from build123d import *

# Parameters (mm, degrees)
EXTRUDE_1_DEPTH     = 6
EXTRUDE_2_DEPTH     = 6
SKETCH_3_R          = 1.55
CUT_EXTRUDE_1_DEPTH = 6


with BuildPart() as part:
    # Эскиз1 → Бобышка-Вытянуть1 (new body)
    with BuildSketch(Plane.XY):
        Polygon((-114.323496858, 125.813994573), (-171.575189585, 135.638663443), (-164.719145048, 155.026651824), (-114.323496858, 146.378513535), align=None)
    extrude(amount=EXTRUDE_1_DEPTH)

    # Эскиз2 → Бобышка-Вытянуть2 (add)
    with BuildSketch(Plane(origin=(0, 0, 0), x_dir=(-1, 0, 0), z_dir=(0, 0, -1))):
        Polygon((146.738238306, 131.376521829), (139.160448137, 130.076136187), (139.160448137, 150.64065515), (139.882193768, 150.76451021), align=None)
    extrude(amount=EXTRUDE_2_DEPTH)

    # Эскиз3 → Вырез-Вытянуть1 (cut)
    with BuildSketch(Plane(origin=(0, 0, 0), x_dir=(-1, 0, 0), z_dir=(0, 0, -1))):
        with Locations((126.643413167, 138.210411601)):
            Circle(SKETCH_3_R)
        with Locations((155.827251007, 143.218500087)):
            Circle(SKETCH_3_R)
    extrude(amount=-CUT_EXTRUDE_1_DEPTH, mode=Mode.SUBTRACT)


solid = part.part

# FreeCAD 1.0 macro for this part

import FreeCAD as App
import Part
import Sketcher

V = App.Vector

doc = App.newDocument("Part")
body = doc.addObject("PartDesign::Body", "Body")

# Sketch on XY plane
sketch1 = body.newObject("Sketcher::SketchObject", "Sketch")
sketch1.AttachmentSupport = (doc.getObject("XY_Plane"), [""])
sketch1.MapMode = "FlatFace"
sketch1.addGeometry([
    Part.LineSegment(V(-172, 136, 0), V(-114, 126, 0)),
    Part.LineSegment(V(-114, 126, 0), V(-114, 146, 0)),
    Part.LineSegment(V(-114, 146, 0), V(-165, 155, 0)),
    Part.LineSegment(V(-165, 155, 0), V(-172, 136, 0)),
], False)
sketch1.addConstraint([
    Sketcher.Constraint("Coincident", 0, 2, 1, 1),
    Sketcher.Constraint("Coincident", 1, 2, 2, 1),
    Sketcher.Constraint("Coincident", 2, 2, 3, 1),
    Sketcher.Constraint("Coincident", 3, 2, 0, 1),
    Sketcher.Constraint("Vertical", 1),
    Sketcher.Constraint("Parallel", 0, 2),
    Sketcher.Constraint("DistanceY", 1, 1, 1, 2, 20.564519),
    Sketcher.Constraint("Distance", 3, 20.564519),
    Sketcher.Constraint("DistanceY", -1, 1, 2, 2, 155.026652),
    Sketcher.Constraint("DistanceX", 3, 2, -1, 1, 171.57519),
    Sketcher.Constraint("DistanceX", 2, 2, 1, 2, 50.395648),
    Sketcher.Constraint("DistanceY", 1, 2, 2, 2, 8.648138),
])
pad1 = body.newObject("PartDesign::Pad", "Pad")
pad1.Profile = sketch1
pad1.Length = 6

# Sketch on XY plane
sketch2 = body.newObject("Sketcher::SketchObject", "Sketch001")
sketch2.AttachmentSupport = (doc.getObject("XY_Plane"), [""])
sketch2.MapMode = "FlatFace"
sketch2.addGeometry([
    Part.LineSegment(V(-139.2, 130.1, 0), V(-146.7, 131.4, 0)),
    Part.LineSegment(V(-146.7, 131.4, 0), V(-139.9, 150.8, 0)),
    Part.LineSegment(V(-139.9, 150.8, 0), V(-139.2, 150.6, 0)),
    Part.LineSegment(V(-139.2, 150.6, 0), V(-139.2, 130.1, 0)),
], False)
sketch2.addConstraint([
    Sketcher.Constraint("Coincident", 0, 2, 1, 1),
    Sketcher.Constraint("Coincident", 1, 2, 2, 1),
    Sketcher.Constraint("Coincident", 2, 2, 3, 1),
    Sketcher.Constraint("Coincident", 3, 2, 0, 1),
    Sketcher.Constraint("Vertical", 3),
    Sketcher.Constraint("Parallel", 0, 2),
    Sketcher.Constraint("DistanceY", 3, 2, 3, 1, 20.564519),
    Sketcher.Constraint("Distance", 1, 20.564519),
    Sketcher.Constraint("DistanceX", 0, 2, -1, 1, 146.738238),
    Sketcher.Constraint("DistanceY", -1, 1, 0, 2, 131.376522),
    Sketcher.Constraint("DistanceY", -1, 1, 1, 2, 150.76451),
    Sketcher.Constraint("DistanceX", 2, 2, -1, 1, 139.160448),
])
pad2 = body.newObject("PartDesign::Pad", "Pad001")
pad2.Profile = sketch2
pad2.Length = 6
pad2.Reversed = True

# Sketch on XY plane
sketch3 = body.newObject("Sketcher::SketchObject", "Sketch002")
sketch3.AttachmentSupport = (doc.getObject("XY_Plane"), [""])
sketch3.MapMode = "FlatFace"
sketch3.addGeometry([
    Part.Circle(V(-126.6, 138.2, 0), V(0, 0, 1), 1.6),
    Part.Circle(V(-155.8, 143.2, 0), V(0, 0, 1), 1.6),
], False)
sketch3.addConstraint([
    Sketcher.Constraint("Equal", 0, 1),
    Sketcher.Constraint("Diameter", 0, 3.1),
    Sketcher.Constraint("DistanceY", -1, 1, 1, 3, 143.2185),
    Sketcher.Constraint("DistanceY", -1, 1, 0, 3, 138.210412),
    Sketcher.Constraint("DistanceX", 1, 3, -1, 1, 155.827251),
    Sketcher.Constraint("DistanceX", 0, 3, -1, 1, 126.643413),
])
pocket1 = body.newObject("PartDesign::Pocket", "Pocket")
pocket1.Profile = sketch3
pocket1.Length = 6
pocket1.Reversed = True

doc.recompute()
